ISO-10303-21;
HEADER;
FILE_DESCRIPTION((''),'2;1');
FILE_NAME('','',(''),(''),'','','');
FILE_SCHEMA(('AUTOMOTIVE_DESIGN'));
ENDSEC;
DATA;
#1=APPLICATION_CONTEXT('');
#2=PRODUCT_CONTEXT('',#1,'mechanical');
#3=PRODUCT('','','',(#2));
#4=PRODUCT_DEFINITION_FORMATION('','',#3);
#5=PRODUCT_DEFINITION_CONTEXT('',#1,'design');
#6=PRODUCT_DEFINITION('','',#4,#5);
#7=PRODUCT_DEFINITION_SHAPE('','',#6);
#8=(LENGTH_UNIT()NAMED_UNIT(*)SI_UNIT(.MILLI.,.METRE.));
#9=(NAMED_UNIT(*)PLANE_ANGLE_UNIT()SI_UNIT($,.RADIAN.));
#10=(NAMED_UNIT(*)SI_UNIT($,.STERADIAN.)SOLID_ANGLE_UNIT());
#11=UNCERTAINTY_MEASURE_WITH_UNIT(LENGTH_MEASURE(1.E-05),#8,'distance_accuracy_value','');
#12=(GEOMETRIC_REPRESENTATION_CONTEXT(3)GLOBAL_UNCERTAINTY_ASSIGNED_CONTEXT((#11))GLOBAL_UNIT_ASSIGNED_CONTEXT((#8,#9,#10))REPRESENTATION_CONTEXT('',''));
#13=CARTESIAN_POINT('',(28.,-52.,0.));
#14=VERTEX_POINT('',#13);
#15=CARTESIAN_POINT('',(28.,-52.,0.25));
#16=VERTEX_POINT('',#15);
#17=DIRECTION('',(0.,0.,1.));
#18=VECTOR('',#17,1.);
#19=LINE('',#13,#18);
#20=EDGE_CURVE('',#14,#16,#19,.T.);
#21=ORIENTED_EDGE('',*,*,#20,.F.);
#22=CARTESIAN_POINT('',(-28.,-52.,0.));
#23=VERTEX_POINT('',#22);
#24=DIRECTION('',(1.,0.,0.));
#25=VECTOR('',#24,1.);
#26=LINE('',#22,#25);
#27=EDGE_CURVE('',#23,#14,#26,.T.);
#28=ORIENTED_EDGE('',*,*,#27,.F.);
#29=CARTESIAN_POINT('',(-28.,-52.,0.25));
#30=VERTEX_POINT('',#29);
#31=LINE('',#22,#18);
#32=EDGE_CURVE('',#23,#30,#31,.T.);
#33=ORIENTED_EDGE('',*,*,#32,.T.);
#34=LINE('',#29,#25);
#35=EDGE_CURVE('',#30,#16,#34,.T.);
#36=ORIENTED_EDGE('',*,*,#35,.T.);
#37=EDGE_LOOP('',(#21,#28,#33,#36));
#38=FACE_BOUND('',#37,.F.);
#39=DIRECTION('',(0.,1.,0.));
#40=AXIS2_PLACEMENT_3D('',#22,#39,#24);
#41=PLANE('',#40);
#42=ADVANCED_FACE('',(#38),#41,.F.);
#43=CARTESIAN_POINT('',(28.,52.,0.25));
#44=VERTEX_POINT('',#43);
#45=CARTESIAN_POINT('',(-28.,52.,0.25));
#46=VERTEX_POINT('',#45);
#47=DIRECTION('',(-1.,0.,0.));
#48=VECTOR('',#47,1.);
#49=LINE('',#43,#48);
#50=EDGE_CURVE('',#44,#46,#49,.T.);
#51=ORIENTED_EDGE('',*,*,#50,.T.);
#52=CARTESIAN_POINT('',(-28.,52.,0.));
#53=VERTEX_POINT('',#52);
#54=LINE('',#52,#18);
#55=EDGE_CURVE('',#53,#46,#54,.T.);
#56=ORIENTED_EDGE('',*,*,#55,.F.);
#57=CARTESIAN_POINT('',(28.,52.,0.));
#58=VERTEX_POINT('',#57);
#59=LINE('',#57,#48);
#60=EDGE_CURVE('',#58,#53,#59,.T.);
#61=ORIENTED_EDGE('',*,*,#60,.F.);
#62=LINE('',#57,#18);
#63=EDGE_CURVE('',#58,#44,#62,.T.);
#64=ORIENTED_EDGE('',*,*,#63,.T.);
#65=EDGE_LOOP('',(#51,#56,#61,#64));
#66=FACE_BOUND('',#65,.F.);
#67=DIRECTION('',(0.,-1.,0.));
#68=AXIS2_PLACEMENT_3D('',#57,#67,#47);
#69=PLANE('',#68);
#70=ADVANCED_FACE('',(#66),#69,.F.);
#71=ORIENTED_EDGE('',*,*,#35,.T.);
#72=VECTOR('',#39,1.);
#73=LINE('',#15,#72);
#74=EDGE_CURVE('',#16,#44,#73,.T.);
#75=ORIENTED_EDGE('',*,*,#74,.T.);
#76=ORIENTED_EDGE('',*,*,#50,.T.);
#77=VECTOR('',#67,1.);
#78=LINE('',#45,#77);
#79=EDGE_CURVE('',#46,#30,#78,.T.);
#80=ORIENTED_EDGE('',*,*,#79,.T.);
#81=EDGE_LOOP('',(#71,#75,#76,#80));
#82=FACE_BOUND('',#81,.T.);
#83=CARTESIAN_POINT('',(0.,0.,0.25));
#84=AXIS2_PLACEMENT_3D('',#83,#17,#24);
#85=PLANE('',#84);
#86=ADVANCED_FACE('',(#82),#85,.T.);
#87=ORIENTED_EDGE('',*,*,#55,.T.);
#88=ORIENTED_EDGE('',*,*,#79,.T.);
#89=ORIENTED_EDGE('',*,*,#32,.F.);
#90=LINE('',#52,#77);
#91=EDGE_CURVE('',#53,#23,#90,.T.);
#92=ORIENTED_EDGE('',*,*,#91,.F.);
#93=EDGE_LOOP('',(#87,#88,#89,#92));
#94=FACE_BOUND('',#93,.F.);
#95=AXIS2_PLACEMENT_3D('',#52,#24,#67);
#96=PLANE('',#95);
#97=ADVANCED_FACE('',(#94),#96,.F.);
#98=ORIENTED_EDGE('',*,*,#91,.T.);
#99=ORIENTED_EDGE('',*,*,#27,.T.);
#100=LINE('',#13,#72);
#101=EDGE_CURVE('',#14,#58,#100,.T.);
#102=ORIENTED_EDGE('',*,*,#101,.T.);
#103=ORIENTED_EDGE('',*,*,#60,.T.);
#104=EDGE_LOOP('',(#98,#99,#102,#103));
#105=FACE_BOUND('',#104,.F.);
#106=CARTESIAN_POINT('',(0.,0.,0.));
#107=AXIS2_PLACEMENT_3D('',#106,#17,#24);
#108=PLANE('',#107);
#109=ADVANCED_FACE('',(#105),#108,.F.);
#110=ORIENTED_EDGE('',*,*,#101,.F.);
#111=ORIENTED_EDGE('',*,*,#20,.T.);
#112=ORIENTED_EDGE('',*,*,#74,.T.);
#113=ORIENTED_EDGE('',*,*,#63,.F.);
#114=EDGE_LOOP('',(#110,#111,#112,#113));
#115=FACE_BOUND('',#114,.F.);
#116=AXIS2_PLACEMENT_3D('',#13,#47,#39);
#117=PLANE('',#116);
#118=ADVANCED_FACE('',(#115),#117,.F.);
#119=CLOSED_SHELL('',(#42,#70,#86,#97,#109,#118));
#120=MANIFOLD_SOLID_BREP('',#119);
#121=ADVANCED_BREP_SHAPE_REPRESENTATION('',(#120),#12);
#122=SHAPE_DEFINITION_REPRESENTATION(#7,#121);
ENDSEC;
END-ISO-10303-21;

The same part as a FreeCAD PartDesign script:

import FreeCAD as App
import Part
import Sketcher

V = App.Vector

doc = App.newDocument("Part")
body = doc.addObject("PartDesign::Body", "Body")

sketch1 = body.newObject("Sketcher::SketchObject", "Sketch")
sketch1.AttachmentSupport = (doc.getObject("XY_Plane"), [""])
sketch1.MapMode = "FlatFace"
sketch1.addGeometry([
    Part.LineSegment(V(-28, 52, 0), V(-28, -52, 0)),
    Part.LineSegment(V(-28, -52, 0), V(28, -52, 0)),
    Part.LineSegment(V(28, -52, 0), V(28, 52, 0)),
    Part.LineSegment(V(28, 52, 0), V(-28, 52, 0)),
], False)
sketch1.addConstraint([
    Sketcher.Constraint("Coincident", 0, 2, 1, 1),
    Sketcher.Constraint("Coincident", 1, 2, 2, 1),
    Sketcher.Constraint("Coincident", 2, 2, 3, 1),
    Sketcher.Constraint("Coincident", 3, 2, 0, 1),
    Sketcher.Constraint("Vertical", 0),
    Sketcher.Constraint("Horizontal", 1),
    Sketcher.Constraint("Vertical", 2),
    Sketcher.Constraint("Horizontal", 3),
    Sketcher.Constraint("Symmetric", 0, 2, 2, 2, -1, 1),
    Sketcher.Constraint("DistanceX", 1, 1, 1, 2, 56.0),
    Sketcher.Constraint("DistanceY", 0, 2, 0, 1, 104.0),
])
pad1 = body.newObject("PartDesign::Pad", "Pad")
pad1.Profile = sketch1
pad1.Length = 0.25

doc.recompute()
